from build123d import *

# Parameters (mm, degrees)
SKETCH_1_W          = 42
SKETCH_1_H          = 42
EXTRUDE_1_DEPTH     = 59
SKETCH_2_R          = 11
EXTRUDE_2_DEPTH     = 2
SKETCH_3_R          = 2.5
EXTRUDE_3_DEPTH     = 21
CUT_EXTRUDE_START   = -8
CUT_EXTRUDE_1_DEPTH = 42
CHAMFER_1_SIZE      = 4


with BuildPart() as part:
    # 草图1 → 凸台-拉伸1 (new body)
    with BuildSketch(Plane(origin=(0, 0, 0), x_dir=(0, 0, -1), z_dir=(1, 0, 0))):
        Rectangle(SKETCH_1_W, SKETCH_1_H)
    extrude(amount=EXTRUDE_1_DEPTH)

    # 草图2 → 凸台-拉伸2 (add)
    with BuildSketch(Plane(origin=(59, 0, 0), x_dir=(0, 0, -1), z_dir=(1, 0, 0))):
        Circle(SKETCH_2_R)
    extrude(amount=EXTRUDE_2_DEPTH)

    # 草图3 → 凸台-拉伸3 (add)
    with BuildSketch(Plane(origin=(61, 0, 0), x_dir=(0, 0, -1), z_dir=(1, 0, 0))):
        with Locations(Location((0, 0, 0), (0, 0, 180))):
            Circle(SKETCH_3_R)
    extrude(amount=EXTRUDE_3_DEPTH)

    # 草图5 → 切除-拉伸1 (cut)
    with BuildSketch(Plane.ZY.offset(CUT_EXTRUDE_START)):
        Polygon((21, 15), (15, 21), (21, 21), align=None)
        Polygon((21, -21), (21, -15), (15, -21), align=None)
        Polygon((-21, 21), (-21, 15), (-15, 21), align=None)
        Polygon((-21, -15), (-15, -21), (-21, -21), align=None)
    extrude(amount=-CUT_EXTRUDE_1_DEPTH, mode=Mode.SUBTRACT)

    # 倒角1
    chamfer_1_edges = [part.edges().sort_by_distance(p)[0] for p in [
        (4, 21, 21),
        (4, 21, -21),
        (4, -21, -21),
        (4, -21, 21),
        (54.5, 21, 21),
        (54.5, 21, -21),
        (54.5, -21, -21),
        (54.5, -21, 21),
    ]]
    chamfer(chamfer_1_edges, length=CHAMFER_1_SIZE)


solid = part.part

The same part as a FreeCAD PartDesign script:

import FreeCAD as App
import Part
import Sketcher

V = App.Vector


def edges_at(feature, points):
    """Names of the edges that pass closest to the given points."""
    edges = feature.Shape.Edges
    near = lambda p: min(range(len(edges)), key=lambda i: edges[i].distToShape(Part.Vertex(*p))[0])
    return sorted({f"Edge{near(p) + 1}" for p in points})


def add_polygon(sketch, points):
    """Adds a closed chain of lines whose ends are joined by coincident constraints."""
    first, n = sketch.GeometryCount, len(points)
    for a, b in zip(points, points[1:] + points[:1]):
        sketch.addGeometry(Part.LineSegment(App.Vector(*a, 0), App.Vector(*b, 0)), False)
    for i in range(n):
        sketch.addConstraint(Sketcher.Constraint("Coincident", first + i, 2, first + (i + 1) % n, 1))

doc = App.newDocument("Part")
body = doc.addObject("PartDesign::Body", "Body")

sketch1 = body.newObject("Sketcher::SketchObject", "Sketch")
sketch1.AttachmentSupport = (doc.getObject("YZ_Plane"), [""])
sketch1.MapMode = "FlatFace"
add_polygon(sketch1, [(21, 21), (-21, 21), (-21, -21), (21, -21)])
sketch1.addConstraint([
    Sketcher.Constraint("Horizontal", 0),
    Sketcher.Constraint("Vertical", 1),
    Sketcher.Constraint("Horizontal", 2),
    Sketcher.Constraint("Vertical", 3),
    Sketcher.Constraint("Symmetric", 0, 2, 2, 2, -1, 1),
    Sketcher.Constraint("Equal", 2, 1),
    Sketcher.Constraint("DistanceX", 0, 2, 0, 1, 42.0),
])
pad1 = body.newObject("PartDesign::Pad", "Pad")
pad1.Profile = sketch1
pad1.Length = 59

sketch2 = body.newObject("Sketcher::SketchObject", "Sketch001")
sketch2.AttachmentSupport = (doc.getObject("YZ_Plane"), [""])
sketch2.MapMode = "FlatFace"
sketch2.AttachmentOffset = App.Placement(V(0, 0, 59), App.Rotation())
sketch2.addGeometry(Part.Circle(V(0, 0, 0), V(0, 0, 1), 11), False)
sketch2.addConstraint([
    Sketcher.Constraint("Coincident", 0, 3, -1, 1),
    Sketcher.Constraint("Diameter", 0, 22.0),
])
pad2 = body.newObject("PartDesign::Pad", "Pad001")
pad2.Profile = sketch2
pad2.Length = 2

sketch3 = body.newObject("Sketcher::SketchObject", "Sketch002")
sketch3.AttachmentSupport = (doc.getObject("YZ_Plane"), [""])
sketch3.MapMode = "FlatFace"
sketch3.AttachmentOffset = App.Placement(V(0, 0, 61), App.Rotation())
sketch3.addGeometry(Part.Circle(V(0, 0, 0), V(0, 0, 1), 2.5), False)
sketch3.addConstraint([
    Sketcher.Constraint("Coincident", 0, 3, -1, 1),
    Sketcher.Constraint("Diameter", 0, 5.0),
])
pad3 = body.newObject("PartDesign::Pad", "Pad002")
pad3.Profile = sketch3
pad3.Length = 21

sketch4 = body.newObject("Sketcher::SketchObject", "Sketch003")
sketch4.AttachmentSupport = (doc.getObject("YZ_Plane"), [""])
sketch4.MapMode = "FlatFace"
sketch4.AttachmentOffset = App.Placement(V(0, 0, 8), App.Rotation())
add_polygon(sketch4, [(21, 15), (15, 21), (21, 21)])
add_polygon(sketch4, [(-21, 21), (-15, 21), (-21, 15)])
add_polygon(sketch4, [(21, -21), (15, -21), (21, -15)])
add_polygon(sketch4, [(-21, -15), (-15, -21), (-21, -21)])
sketch4.addConstraint([
    Sketcher.Constraint("Horizontal", 1),
    Sketcher.Constraint("Vertical", 2),
    Sketcher.Constraint("Horizontal", 3),
    Sketcher.Constraint("Vertical", 5),
    Sketcher.Constraint("Horizontal", 6),
    Sketcher.Constraint("Vertical", 8),
    Sketcher.Constraint("Horizontal", 10),
    Sketcher.Constraint("Vertical", 11),
    Sketcher.Constraint("Symmetric", 3, 2, 6, 2, -1, 1),
    Sketcher.Constraint("Symmetric", 4, 2, 7, 2, -1, 1),
    Sketcher.Constraint("Symmetric", 0, 2, 9, 2, -1, 1),
    Sketcher.Constraint("Symmetric", 2, 2, 11, 2, -1, 1),
    Sketcher.Constraint("Symmetric", 0, 2, 3, 2, -2),
    Sketcher.Constraint("Symmetric", 2, 2, 4, 2, -2),
    Sketcher.Constraint("Perpendicular", 0, 4),
    Sketcher.Constraint("DistanceX", 1, 1, 1, 2, 6.0),
    Sketcher.Constraint("DistanceX", -1, 1, 0, 2, 15.0),
    Sketcher.Constraint("DistanceY", -1, 1, 0, 2, 21.0),
])
pocket1 = body.newObject("PartDesign::Pocket", "Pocket")
pocket1.Profile = sketch4
pocket1.Length = 42
pocket1.Reversed = True
doc.recompute()

chamfer = body.newObject("PartDesign::Chamfer", "Chamfer")
chamfer.Base = (pocket1, edges_at(pocket1, [
    (4, 21, 21),
    (4, 21, -21),
    (4, -21, -21),
    (4, -21, 21),
    (54.5, 21, 21),
    (54.5, 21, -21),
    (54.5, -21, -21),
    (54.5, -21, 21),
]))
chamfer.Size = 4

doc.recompute()
